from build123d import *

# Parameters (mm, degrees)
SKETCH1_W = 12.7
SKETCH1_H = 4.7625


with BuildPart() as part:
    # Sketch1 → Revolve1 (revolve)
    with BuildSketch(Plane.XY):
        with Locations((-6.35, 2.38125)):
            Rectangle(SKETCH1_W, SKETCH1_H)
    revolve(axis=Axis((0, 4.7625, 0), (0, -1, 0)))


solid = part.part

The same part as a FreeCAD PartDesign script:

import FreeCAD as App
import Part
import Sketcher
Q = App.Units.Quantity

doc = App.newDocument("Part")
body = doc.addObject("PartDesign::Body", "Body")

# Sketch on XY plane
sketch1 = body.newObject("Sketcher::SketchObject", "Sketch")
sketch1.AttachmentSupport = (doc.getObject("XY_Plane"), [""])
sketch1.MapMode = "FlatFace"
sketch1.addGeometry([
    Part.LineSegment(App.Vector(-12.7, 4.8, 0), App.Vector(-12.7, 0, 0)),
    Part.LineSegment(App.Vector(-12.7, 0, 0), App.Vector(0, 0, 0)),
    Part.LineSegment(App.Vector(0, 0, 0), App.Vector(0, 4.8, 0)),
    Part.LineSegment(App.Vector(0, 4.8, 0), App.Vector(-12.7, 4.8, 0)),
], False)
sketch1.addConstraint([
    Sketcher.Constraint("Coincident", 0, 2, 1, 1),
    Sketcher.Constraint("Coincident", 1, 2, 2, 1),
    Sketcher.Constraint("Coincident", 2, 2, 3, 1),
    Sketcher.Constraint("Coincident", 3, 2, 0, 1),
    Sketcher.Constraint("Vertical", 0),
    Sketcher.Constraint("Horizontal", 1),
    Sketcher.Constraint("Vertical", 2),
    Sketcher.Constraint("Horizontal", 3),
    Sketcher.Constraint("Coincident", 1, 2, -1, 1),
    Sketcher.Constraint("DistanceX", 1, 1, 1, 2, Q("0.5 in")),
    Sketcher.Constraint("DistanceY", 0, 2, 0, 1, Q("0.1875 in")),
])
revolution = body.newObject("PartDesign::Revolution", "Revolution")
revolution.Profile = sketch1
revolution.ReferenceAxis = (sketch1, ["V_Axis"])
revolution.Angle = 360

doc.recompute()
